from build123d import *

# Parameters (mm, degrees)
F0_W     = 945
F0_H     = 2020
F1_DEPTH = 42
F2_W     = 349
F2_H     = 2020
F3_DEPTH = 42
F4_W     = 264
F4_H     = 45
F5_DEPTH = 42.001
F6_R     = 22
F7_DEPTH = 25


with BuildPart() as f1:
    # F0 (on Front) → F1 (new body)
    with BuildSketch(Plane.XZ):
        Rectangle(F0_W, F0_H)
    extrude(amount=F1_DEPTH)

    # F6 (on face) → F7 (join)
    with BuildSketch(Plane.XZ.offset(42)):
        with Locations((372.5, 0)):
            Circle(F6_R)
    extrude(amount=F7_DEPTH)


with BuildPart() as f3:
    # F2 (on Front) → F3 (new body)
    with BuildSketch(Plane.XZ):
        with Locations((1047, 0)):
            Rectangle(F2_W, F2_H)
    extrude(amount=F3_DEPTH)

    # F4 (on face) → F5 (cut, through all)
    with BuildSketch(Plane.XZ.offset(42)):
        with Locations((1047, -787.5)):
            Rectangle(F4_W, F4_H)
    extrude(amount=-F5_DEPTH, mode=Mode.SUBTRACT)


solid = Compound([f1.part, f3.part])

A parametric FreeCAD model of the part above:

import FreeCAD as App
import Part
import Sketcher
Q = App.Units.Quantity


def add_polygon(sketch, points):
    """Adds a closed chain of lines whose ends are joined by coincident constraints."""
    first, n = sketch.GeometryCount, len(points)
    for a, b in zip(points, points[1:] + points[:1]):
        sketch.addGeometry(Part.LineSegment(App.Vector(*a, 0), App.Vector(*b, 0)), False)
    for i in range(n):
        sketch.addConstraint(Sketcher.Constraint("Coincident", first + i, 2, first + (i + 1) % n, 1))

doc = App.newDocument("Part")
params = doc.addObject("Spreadsheet::Sheet", "Params")
for row, (alias, value) in enumerate([
    ("sketch1_width", "945 mm"),
    ("sketch1_height", "2020 mm"),
    ("pad1_length", "42 mm"),
    ("sketch2_diameter", "44 mm"),
    ("pad2_length", "25 mm"),
    ("sketch3_width", "349 mm"),
    ("sketch3_height", "2020 mm"),
    ("pad3_length", "42 mm"),
    ("sketch4_width", "264 mm"),
    ("sketch4_height", "45 mm"),
], start=1):
    params.set(f"A{row}", alias)
    params.set(f"B{row}", "=" + value)
    params.setAlias(f"B{row}", alias)

body = doc.addObject("PartDesign::Body", "Body")

# Sketch on XZ plane
sketch1 = body.newObject("Sketcher::SketchObject", "Sketch")
sketch1.AttachmentSupport = (doc.getObject("XZ_Plane"), [""])
sketch1.MapMode = "FlatFace"
add_polygon(sketch1, [(-472.5, 1010), (-472.5, -1010), (472.5, -1010), (472.5, 1010)])  # lines 0-3
sketch1.addConstraint([
    Sketcher.Constraint("Vertical", 0),
    Sketcher.Constraint("Horizontal", 1),
    Sketcher.Constraint("Vertical", 2),
    Sketcher.Constraint("Horizontal", 3),
    Sketcher.Constraint("Symmetric", 0, 2, 2, 2, -1, 1),
    Sketcher.Constraint("DistanceX", 1, 1, 1, 2, Q("945 mm")),
    Sketcher.Constraint("DistanceY", 0, 2, 0, 1, Q("2020 mm")),
])
sketch1.setExpression("Constraints[9]", "Params.sketch1_width")
sketch1.setExpression("Constraints[10]", "Params.sketch1_height")
pad1 = body.newObject("PartDesign::Pad", "Pad")
pad1.Profile = sketch1
pad1.setExpression("Length", "Params.pad1_length")

# Sketch on XZ plane
sketch2 = body.newObject("Sketcher::SketchObject", "Sketch001")
sketch2.AttachmentSupport = (doc.getObject("XZ_Plane"), [""])
sketch2.MapMode = "FlatFace"
sketch2.AttachmentOffset = App.Placement(App.Vector(0, 0, 42), App.Rotation())
sketch2.addGeometry(Part.Circle(App.Vector(372.5, 0, 0), App.Vector(0, 0, 1), 22), False)
sketch2.addConstraint([
    Sketcher.Constraint("PointOnObject", 0, 3, -1),
    Sketcher.Constraint("Diameter", 0, Q("44 mm")),
    Sketcher.Constraint("DistanceX", -1, 1, 0, 3, Q("372.5 mm")),
])
sketch2.setExpression("Constraints[1]", "Params.sketch2_diameter")
pad2 = body.newObject("PartDesign::Pad", "Pad001")
pad2.Profile = sketch2
pad2.setExpression("Length", "Params.pad2_length")
body2 = doc.addObject("PartDesign::Body", "Body001")

# Sketch on XZ plane
sketch3 = body2.newObject("Sketcher::SketchObject", "Sketch002")
sketch3.AttachmentSupport = (doc.getObject("XZ_Plane001"), [""])
sketch3.MapMode = "FlatFace"
add_polygon(sketch3, [(872.5, 1010), (872.5, -1010), (1221.5, -1010), (1221.5, 1010)])  # lines 0-3
sketch3.addConstraint([
    Sketcher.Constraint("Vertical", 0),
    Sketcher.Constraint("Horizontal", 1),
    Sketcher.Constraint("Vertical", 2),
    Sketcher.Constraint("Horizontal", 3),
    Sketcher.Constraint("DistanceX", 1, 1, 1, 2, Q("349 mm")),
    Sketcher.Constraint("DistanceY", 0, 2, 0, 1, Q("2020 mm")),
    Sketcher.Constraint("DistanceY", 0, 2, -1, 1, Q("1010 mm")),
    Sketcher.Constraint("DistanceX", -1, 1, 0, 2, Q("872.5 mm")),
])
sketch3.setExpression("Constraints[8]", "Params.sketch3_width")
sketch3.setExpression("Constraints[9]", "Params.sketch3_height")
pad3 = body2.newObject("PartDesign::Pad", "Pad002")
pad3.Profile = sketch3
pad3.setExpression("Length", "Params.pad3_length")

# Sketch on XZ plane
sketch4 = body2.newObject("Sketcher::SketchObject", "Sketch003")
sketch4.AttachmentSupport = (doc.getObject("XZ_Plane001"), [""])
sketch4.MapMode = "FlatFace"
sketch4.AttachmentOffset = App.Placement(App.Vector(0, 0, 42), App.Rotation())
add_polygon(sketch4, [(915, -765), (915, -810), (1179, -810), (1179, -765)])  # lines 0-3
sketch4.addConstraint([
    Sketcher.Constraint("Vertical", 0),
    Sketcher.Constraint("Horizontal", 1),
    Sketcher.Constraint("Vertical", 2),
    Sketcher.Constraint("Horizontal", 3),
    Sketcher.Constraint("DistanceX", 1, 1, 1, 2, Q("264 mm")),
    Sketcher.Constraint("DistanceY", 0, 2, 0, 1, Q("45 mm")),
    Sketcher.Constraint("DistanceX", -1, 1, 0, 2, Q("915 mm")),
    Sketcher.Constraint("DistanceY", 0, 2, -1, 1, Q("810 mm")),
])
sketch4.setExpression("Constraints[8]", "Params.sketch4_width")
sketch4.setExpression("Constraints[9]", "Params.sketch4_height")
pocket1 = body2.newObject("PartDesign::Pocket", "Pocket")
pocket1.Profile = sketch4
pocket1.Type = "ThroughAll"

doc.recompute()
